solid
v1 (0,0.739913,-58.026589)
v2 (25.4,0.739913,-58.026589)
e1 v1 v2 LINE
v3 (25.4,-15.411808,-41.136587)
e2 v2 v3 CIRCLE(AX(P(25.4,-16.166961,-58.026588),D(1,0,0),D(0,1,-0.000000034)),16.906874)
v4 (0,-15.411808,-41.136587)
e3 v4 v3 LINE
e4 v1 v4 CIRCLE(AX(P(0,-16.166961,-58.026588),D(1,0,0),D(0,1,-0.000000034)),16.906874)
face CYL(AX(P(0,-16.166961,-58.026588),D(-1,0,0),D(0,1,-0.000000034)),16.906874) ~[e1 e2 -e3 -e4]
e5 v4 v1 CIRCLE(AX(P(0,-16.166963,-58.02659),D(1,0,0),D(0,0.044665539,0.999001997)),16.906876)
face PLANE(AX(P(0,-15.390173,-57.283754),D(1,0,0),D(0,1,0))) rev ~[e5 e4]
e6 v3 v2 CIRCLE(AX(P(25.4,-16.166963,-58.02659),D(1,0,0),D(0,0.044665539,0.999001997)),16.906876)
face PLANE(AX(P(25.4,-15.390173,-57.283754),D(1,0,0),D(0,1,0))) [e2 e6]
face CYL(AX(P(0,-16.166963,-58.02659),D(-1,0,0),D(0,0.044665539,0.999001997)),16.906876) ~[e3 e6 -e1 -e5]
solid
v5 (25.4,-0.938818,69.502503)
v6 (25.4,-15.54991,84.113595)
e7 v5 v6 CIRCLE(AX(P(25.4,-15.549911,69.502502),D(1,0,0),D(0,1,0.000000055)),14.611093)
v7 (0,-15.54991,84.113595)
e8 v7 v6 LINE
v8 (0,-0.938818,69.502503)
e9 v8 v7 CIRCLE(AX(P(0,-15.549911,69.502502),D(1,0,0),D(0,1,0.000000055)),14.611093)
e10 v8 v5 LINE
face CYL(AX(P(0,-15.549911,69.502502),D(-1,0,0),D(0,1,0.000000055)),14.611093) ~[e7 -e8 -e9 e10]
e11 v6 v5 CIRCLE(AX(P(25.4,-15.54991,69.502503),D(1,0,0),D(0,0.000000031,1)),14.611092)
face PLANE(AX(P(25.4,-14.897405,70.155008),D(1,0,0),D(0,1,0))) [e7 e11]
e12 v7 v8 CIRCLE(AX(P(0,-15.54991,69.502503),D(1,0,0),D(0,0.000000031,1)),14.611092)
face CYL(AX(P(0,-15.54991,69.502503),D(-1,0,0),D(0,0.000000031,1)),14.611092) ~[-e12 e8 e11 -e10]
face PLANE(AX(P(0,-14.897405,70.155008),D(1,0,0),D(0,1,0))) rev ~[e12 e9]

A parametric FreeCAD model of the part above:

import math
import FreeCAD as App
import Part
import Sketcher
from FreeCAD import Vector
Q = App.Units.Quantity

doc = App.newDocument("Part")
body = doc.addObject("PartDesign::Body", "Body")

# Sketch on YZ plane
sketch1 = doc.addObject("Sketcher::SketchObject", "Sketch")
body.addObject(sketch1)
sketch1.AttachmentSupport = (doc.YZ_Plane, [""])
sketch1.MapMode = "FlatFace"
sketch1.addGeometry([
    Part.ArcOfCircle(Part.Circle(Vector(-16.166963, -58.02659, 0), Vector(0, 0, 1), 16.906876), math.radians(87.440001), math.radians(360.000002)),
    Part.ArcOfCircle(Part.Circle(Vector(-16.166961, -58.026588, 0), Vector(0, 0, 1), 16.906874), math.radians(-0.000002), math.radians(87.440005)),
], False)
sketch1.addConstraint([
    Sketcher.Constraint("Coincident", 0, 1, 1, 2),
    Sketcher.Constraint("Coincident", 1, 1, 0, 2),
    Sketcher.Constraint("Radius", 0, 16.906876),
    Sketcher.Constraint("Radius", 1, 16.906874),
    Sketcher.Constraint("DistanceY", 1, 3, 0, 1, 16.890001),
    Sketcher.Constraint("DistanceY", 1, 1, 0, 1, 16.890002),
    Sketcher.Constraint("DistanceY", 0, 3, -1, 1, 58.02659),
    Sketcher.Constraint("DistanceX", 1, 3, -1, 1, 16.166961),
])
pad1 = doc.addObject("PartDesign::Pad", "Pad")
body.addObject(pad1)
pad1.Profile = sketch1
pad1.Length = Q("1 in")
body2 = doc.addObject("PartDesign::Body", "Body001")

# Sketch on YZ plane
sketch2 = doc.addObject("Sketcher::SketchObject", "Sketch001")
body2.addObject(sketch2)
sketch2.AttachmentSupport = (doc.getObject("YZ_Plane001"), [""])
sketch2.MapMode = "FlatFace"
sketch2.addGeometry([
    Part.ArcOfCircle(Part.Circle(Vector(-16, 70, 0), Vector(0, 0, 1), 15), math.radians(90), math.radians(360)),
    Part.ArcOfCircle(Part.Circle(Vector(-16, 70, 0), Vector(0, 0, 1), 15), math.radians(0), math.radians(90)),
], False)
sketch2.addConstraint([
    Sketcher.Constraint("Tangent", 0, 1, 1, 2),
    Sketcher.Constraint("Coincident", 1, 1, 0, 2),
    Sketcher.Constraint("Horizontal", 0, 3, 1, 1),
    Sketcher.Constraint("Vertical", 1, 3, 0, 1),
    Sketcher.Constraint("Radius", 0, 14.611092),
    Sketcher.Constraint("DistanceX", 0, 3, -1, 1, 15.54991),
    Sketcher.Constraint("DistanceY", -1, 1, 0, 3, 69.502503),
])
pad2 = doc.addObject("PartDesign::Pad", "Pad001")
body2.addObject(pad2)
pad2.Profile = sketch2
pad2.Length = Q("1 in")

doc.recompute()
